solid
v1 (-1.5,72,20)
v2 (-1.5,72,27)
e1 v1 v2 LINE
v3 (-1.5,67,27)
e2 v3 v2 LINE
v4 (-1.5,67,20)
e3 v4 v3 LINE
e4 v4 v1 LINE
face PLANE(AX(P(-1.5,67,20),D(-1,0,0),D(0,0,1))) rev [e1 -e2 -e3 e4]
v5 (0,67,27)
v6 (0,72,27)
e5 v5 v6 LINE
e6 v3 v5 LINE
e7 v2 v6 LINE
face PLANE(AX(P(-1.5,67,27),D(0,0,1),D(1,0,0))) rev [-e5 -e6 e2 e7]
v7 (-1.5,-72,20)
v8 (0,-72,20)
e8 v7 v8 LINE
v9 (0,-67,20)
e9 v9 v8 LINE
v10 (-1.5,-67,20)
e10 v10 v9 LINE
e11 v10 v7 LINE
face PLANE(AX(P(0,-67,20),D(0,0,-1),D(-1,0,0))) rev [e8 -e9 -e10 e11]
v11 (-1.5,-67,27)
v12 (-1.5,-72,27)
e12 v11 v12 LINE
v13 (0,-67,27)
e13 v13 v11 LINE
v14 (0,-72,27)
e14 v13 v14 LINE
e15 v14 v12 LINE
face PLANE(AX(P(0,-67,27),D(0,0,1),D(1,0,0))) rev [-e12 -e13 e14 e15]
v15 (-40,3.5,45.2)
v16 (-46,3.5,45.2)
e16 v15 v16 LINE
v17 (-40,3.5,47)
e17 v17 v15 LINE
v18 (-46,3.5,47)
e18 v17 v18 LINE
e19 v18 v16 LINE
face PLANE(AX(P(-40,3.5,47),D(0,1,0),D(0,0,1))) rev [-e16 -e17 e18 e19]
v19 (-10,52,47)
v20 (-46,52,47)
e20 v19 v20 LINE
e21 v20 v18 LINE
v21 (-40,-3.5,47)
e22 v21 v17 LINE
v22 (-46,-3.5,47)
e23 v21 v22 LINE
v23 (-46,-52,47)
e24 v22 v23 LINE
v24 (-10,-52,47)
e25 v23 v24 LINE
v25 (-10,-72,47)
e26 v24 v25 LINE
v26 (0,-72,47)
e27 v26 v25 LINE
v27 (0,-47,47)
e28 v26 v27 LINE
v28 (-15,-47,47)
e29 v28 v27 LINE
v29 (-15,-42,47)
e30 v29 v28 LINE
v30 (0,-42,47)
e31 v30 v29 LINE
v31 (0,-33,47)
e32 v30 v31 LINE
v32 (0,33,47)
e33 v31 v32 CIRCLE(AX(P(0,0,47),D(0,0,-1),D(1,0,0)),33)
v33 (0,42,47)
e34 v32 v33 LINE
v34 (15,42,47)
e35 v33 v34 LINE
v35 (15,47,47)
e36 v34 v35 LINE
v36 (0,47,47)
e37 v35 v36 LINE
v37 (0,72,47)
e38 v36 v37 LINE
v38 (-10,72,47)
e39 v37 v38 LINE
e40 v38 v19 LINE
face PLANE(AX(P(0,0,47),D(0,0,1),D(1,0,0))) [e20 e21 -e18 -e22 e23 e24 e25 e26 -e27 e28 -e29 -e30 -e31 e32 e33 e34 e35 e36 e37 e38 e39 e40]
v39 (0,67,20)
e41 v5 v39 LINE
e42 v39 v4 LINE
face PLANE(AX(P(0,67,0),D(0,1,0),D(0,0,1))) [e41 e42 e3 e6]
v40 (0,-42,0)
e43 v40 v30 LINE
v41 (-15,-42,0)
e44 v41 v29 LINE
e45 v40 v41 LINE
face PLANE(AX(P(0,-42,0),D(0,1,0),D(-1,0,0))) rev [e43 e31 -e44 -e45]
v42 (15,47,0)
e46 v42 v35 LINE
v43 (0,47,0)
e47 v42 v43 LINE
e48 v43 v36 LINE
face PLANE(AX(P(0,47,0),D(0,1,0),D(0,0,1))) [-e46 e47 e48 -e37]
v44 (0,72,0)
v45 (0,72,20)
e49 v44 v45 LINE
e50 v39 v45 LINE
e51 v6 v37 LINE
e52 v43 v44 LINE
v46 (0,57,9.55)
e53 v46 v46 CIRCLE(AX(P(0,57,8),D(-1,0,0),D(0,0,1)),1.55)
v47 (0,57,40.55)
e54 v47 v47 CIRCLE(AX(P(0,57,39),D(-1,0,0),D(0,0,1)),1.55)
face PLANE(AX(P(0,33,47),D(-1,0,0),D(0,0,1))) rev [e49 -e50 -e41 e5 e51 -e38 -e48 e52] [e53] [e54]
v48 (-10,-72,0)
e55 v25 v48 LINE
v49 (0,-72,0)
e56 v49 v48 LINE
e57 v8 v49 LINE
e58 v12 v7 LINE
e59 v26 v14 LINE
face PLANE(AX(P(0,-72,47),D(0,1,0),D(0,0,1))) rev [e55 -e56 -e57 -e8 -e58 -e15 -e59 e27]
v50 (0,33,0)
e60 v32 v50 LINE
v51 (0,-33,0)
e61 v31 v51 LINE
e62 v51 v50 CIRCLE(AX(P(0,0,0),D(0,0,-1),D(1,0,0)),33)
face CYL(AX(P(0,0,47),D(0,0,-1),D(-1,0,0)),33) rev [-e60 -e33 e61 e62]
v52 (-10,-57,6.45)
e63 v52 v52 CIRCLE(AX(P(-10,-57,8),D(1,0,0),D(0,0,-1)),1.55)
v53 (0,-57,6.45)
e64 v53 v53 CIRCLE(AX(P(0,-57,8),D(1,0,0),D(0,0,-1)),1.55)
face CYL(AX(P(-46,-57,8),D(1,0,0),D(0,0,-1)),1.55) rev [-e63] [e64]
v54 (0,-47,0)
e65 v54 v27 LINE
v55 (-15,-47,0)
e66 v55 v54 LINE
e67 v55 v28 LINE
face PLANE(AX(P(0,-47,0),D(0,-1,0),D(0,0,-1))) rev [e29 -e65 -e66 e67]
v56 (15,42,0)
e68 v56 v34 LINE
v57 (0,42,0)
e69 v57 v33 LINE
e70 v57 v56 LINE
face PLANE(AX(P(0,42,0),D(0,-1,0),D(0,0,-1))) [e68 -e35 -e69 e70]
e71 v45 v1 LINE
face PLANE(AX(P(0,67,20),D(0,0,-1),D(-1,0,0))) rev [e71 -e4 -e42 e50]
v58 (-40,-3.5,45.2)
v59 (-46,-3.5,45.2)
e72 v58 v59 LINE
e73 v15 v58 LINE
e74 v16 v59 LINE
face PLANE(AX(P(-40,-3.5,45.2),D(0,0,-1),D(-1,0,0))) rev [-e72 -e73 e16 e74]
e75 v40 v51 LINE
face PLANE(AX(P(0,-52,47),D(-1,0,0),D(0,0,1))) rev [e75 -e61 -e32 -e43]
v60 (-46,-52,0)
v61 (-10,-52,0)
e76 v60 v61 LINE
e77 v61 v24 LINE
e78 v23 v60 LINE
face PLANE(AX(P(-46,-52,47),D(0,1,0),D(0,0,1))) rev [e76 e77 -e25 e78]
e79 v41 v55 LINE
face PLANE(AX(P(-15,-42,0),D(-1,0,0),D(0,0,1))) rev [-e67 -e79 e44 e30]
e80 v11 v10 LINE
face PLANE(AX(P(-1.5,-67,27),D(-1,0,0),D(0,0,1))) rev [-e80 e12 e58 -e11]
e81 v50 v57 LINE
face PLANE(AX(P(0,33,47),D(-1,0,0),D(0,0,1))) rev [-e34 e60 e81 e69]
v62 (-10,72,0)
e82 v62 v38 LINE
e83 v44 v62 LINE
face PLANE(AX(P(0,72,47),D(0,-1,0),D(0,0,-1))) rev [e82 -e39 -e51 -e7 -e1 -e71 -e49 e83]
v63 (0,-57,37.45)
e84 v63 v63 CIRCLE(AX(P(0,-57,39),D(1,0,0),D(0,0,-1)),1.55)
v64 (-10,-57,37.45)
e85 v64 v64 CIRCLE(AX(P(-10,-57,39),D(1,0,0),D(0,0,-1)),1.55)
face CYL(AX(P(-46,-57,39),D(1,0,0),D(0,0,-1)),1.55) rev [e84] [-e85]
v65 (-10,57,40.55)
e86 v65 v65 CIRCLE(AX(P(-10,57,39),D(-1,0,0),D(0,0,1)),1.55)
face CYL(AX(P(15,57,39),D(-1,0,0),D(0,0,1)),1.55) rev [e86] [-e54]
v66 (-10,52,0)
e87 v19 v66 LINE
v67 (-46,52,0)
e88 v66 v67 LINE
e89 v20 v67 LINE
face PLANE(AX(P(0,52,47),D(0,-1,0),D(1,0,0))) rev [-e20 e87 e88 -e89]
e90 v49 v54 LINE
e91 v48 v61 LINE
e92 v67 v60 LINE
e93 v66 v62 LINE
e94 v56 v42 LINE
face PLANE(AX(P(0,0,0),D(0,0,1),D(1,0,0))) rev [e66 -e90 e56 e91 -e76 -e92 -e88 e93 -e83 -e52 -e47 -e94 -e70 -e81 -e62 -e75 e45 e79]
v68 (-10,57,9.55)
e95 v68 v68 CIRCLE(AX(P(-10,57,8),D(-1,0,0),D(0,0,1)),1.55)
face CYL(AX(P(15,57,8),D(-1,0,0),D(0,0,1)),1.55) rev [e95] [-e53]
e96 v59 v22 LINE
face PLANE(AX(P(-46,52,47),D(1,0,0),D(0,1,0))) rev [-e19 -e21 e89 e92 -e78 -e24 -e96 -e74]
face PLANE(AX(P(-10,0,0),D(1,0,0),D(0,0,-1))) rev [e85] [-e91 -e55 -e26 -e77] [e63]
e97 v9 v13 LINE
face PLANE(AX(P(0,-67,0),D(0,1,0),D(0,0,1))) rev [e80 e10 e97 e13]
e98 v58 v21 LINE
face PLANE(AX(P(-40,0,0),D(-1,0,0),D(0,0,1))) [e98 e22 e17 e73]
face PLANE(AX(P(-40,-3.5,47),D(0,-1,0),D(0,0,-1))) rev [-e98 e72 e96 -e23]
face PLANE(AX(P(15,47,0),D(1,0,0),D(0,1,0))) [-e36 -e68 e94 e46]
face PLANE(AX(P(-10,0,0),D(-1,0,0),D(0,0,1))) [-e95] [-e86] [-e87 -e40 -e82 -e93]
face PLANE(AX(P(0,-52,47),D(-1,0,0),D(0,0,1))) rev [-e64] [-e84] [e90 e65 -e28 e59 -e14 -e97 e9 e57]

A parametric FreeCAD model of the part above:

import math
import FreeCAD as App
import Part
import Sketcher
from FreeCAD import Vector


def add_polygon(sketch, points):
    """Adds a closed chain of lines whose ends are joined by coincident constraints."""
    first, n = sketch.GeometryCount, len(points)
    for a, b in zip(points, points[1:] + points[:1]):
        sketch.addGeometry(Part.LineSegment(App.Vector(*a, 0), App.Vector(*b, 0)), False)
    for i in range(n):
        sketch.addConstraint(Sketcher.Constraint("Coincident", first + i, 2, first + (i + 1) % n, 1))

doc = App.newDocument("Part")
body = doc.addObject("PartDesign::Body", "Body")

# Sketch on XY plane
sketch1 = body.newObject("Sketcher::SketchObject", "Sketch")
sketch1.AttachmentSupport = (doc.getObject("XY_Plane"), [""])
sketch1.MapMode = "FlatFace"
sketch1.addGeometry(Part.LineSegment(Vector(0, 33, 0), Vector(0, 52, 0)), False)
sketch1.addGeometry(Part.LineSegment(Vector(0, 52, 0), Vector(-46, 52, 0)), False)
sketch1.addGeometry(Part.LineSegment(Vector(-46, 52, 0), Vector(-46, -52, 0)), False)
sketch1.addGeometry(Part.LineSegment(Vector(-46, -52, 0), Vector(0, -52, 0)), False)
sketch1.addGeometry(Part.LineSegment(Vector(0, -52, 0), Vector(0, -33, 0)), False)
sketch1.addGeometry(Part.ArcOfCircle(Part.Circle(Vector(0, 0, 0), Vector(0, 0, 1), 33), math.radians(90), math.radians(270)), False)
sketch1.addConstraint(Sketcher.Constraint("Coincident", 0, 2, 1, 1))
sketch1.addConstraint(Sketcher.Constraint("Coincident", 1, 2, 2, 1))
sketch1.addConstraint(Sketcher.Constraint("Coincident", 2, 2, 3, 1))
sketch1.addConstraint(Sketcher.Constraint("Coincident", 3, 2, 4, 1))
sketch1.addConstraint(Sketcher.Constraint("Coincident", 4, 2, 5, 2))
sketch1.addConstraint(Sketcher.Constraint("Coincident", 5, 1, 0, 1))
sketch1.addConstraint(Sketcher.Constraint("Vertical", 0))
sketch1.addConstraint(Sketcher.Constraint("Horizontal", 1))
sketch1.addConstraint(Sketcher.Constraint("Vertical", 2))
sketch1.addConstraint(Sketcher.Constraint("Horizontal", 3))
sketch1.addConstraint(Sketcher.Constraint("Vertical", 4))
sketch1.addConstraint(Sketcher.Constraint("Coincident", 5, 3, -1, 1))
sketch1.addConstraint(Sketcher.Constraint("Symmetric", 0, 2, 3, 2, -1, 1))
sketch1.addConstraint(Sketcher.Constraint("PointOnObject", 0, 2, -2))
sketch1.addConstraint(Sketcher.Constraint("Radius", 5, 33.0))
sketch1.addConstraint(Sketcher.Constraint("DistanceX", 1, 2, 1, 1, 46.0))
sketch1.addConstraint(Sketcher.Constraint("DistanceY", 0, 1, 0, 2, 19.0))
pad1 = body.newObject("PartDesign::Pad", "Pad")
pad1.Profile = sketch1
pad1.Length = 47

# Sketch on YZ plane
sketch2 = body.newObject("Sketcher::SketchObject", "Sketch001")
sketch2.AttachmentSupport = (doc.getObject("YZ_Plane"), [""])
sketch2.MapMode = "FlatFace"
sketch2.AttachmentOffset = App.Placement(Vector(0, 0, -10), App.Rotation())
add_polygon(sketch2, [(72, 47), (52, 47), (52, 0), (72, 0)])  # lines 0-3
sketch2.addConstraint(Sketcher.Constraint("Horizontal", 0))
sketch2.addConstraint(Sketcher.Constraint("Vertical", 1))
sketch2.addConstraint(Sketcher.Constraint("Horizontal", 2))
sketch2.addConstraint(Sketcher.Constraint("Vertical", 3))
sketch2.addConstraint(Sketcher.Constraint("PointOnObject", 1, 2, -1))
sketch2.addConstraint(Sketcher.Constraint("DistanceX", 0, 2, 0, 1, 20.0))
sketch2.addConstraint(Sketcher.Constraint("DistanceY", 1, 2, 1, 1, 47.0))
sketch2.addConstraint(Sketcher.Constraint("DistanceX", -1, 1, 0, 2, 52.0))
pad2 = body.newObject("PartDesign::Pad", "Pad001")
pad2.Profile = sketch2
pad2.Length = 10

# Sketch on YZ plane
sketch3 = body.newObject("Sketcher::SketchObject", "Sketch002")
sketch3.AttachmentSupport = (doc.getObject("YZ_Plane"), [""])
sketch3.MapMode = "FlatFace"
sketch3.AttachmentOffset = App.Placement(Vector(0, 0, -10), App.Rotation())
add_polygon(sketch3, [(-52, 47), (-72, 47), (-72, 0), (-52, 0)])  # lines 0-3
sketch3.addConstraint(Sketcher.Constraint("Horizontal", 0))
sketch3.addConstraint(Sketcher.Constraint("Vertical", 1))
sketch3.addConstraint(Sketcher.Constraint("Horizontal", 2))
sketch3.addConstraint(Sketcher.Constraint("Vertical", 3))
sketch3.addConstraint(Sketcher.Constraint("PointOnObject", 1, 2, -1))
sketch3.addConstraint(Sketcher.Constraint("DistanceX", 0, 2, 0, 1, 20.0))
sketch3.addConstraint(Sketcher.Constraint("DistanceY", 1, 2, 1, 1, 47.0))
sketch3.addConstraint(Sketcher.Constraint("DistanceX", 0, 2, -1, 1, 72.0))
pad3 = body.newObject("PartDesign::Pad", "Pad002")
pad3.Profile = sketch3
pad3.Length = 10

# Sketch on XY plane
sketch4 = body.newObject("Sketcher::SketchObject", "Sketch003")
sketch4.AttachmentSupport = (doc.getObject("XY_Plane"), [""])
sketch4.MapMode = "FlatFace"
sketch4.AttachmentOffset = App.Placement(Vector(0, 0, 47), App.Rotation())
add_polygon(sketch4, [(-15, -42), (-15, -47), (0, -47), (0, -42)])  # lines 0-3
sketch4.addConstraint(Sketcher.Constraint("Vertical", 0))
sketch4.addConstraint(Sketcher.Constraint("Horizontal", 1))
sketch4.addConstraint(Sketcher.Constraint("Vertical", 2))
sketch4.addConstraint(Sketcher.Constraint("Horizontal", 3))
sketch4.addConstraint(Sketcher.Constraint("PointOnObject", 1, 2, -2))
sketch4.addConstraint(Sketcher.Constraint("DistanceX", 1, 1, 1, 2, 15.0))
sketch4.addConstraint(Sketcher.Constraint("DistanceY", 0, 2, 0, 1, 5.0))
sketch4.addConstraint(Sketcher.Constraint("DistanceY", 0, 2, -1, 1, 47.0))
pocket1 = body.newObject("PartDesign::Pocket", "Pocket")
pocket1.Profile = sketch4
pocket1.Type = "ThroughAll"

# Sketch on XY plane
sketch5 = body.newObject("Sketcher::SketchObject", "Sketch004")
sketch5.AttachmentSupport = (doc.getObject("XY_Plane"), [""])
sketch5.MapMode = "FlatFace"
sketch5.AttachmentOffset = App.Placement(Vector(0, 0, 47), App.Rotation())
add_polygon(sketch5, [(0, 47), (0, 42), (15, 42), (15, 47)])  # lines 0-3
sketch5.addConstraint(Sketcher.Constraint("Vertical", 0))
sketch5.addConstraint(Sketcher.Constraint("Horizontal", 1))
sketch5.addConstraint(Sketcher.Constraint("Vertical", 2))
sketch5.addConstraint(Sketcher.Constraint("Horizontal", 3))
sketch5.addConstraint(Sketcher.Constraint("PointOnObject", 0, 2, -2))
sketch5.addConstraint(Sketcher.Constraint("DistanceX", 1, 1, 1, 2, 15.0))
sketch5.addConstraint(Sketcher.Constraint("DistanceY", 0, 2, 0, 1, 5.0))
sketch5.addConstraint(Sketcher.Constraint("DistanceY", -1, 1, 0, 2, 42.0))
pad4 = body.newObject("PartDesign::Pad", "Pad003")
pad4.Profile = sketch5
pad4.Length = 47
pad4.Reversed = True

# Sketch on XZ plane
sketch6 = body.newObject("Sketcher::SketchObject", "Sketch005")
sketch6.AttachmentSupport = (doc.getObject("XZ_Plane"), [""])
sketch6.MapMode = "FlatFace"
sketch6.AttachmentOffset = App.Placement(Vector(0, 0, 72), App.Rotation())
add_polygon(sketch6, [(-1.5, 27), (-1.5, 20), (0, 20), (0, 27)])  # lines 0-3
sketch6.addConstraint(Sketcher.Constraint("Vertical", 0))
sketch6.addConstraint(Sketcher.Constraint("Horizontal", 1))
sketch6.addConstraint(Sketcher.Constraint("Vertical", 2))
sketch6.addConstraint(Sketcher.Constraint("Horizontal", 3))
sketch6.addConstraint(Sketcher.Constraint("PointOnObject", 1, 2, -2))
sketch6.addConstraint(Sketcher.Constraint("DistanceY", 0, 2, 0, 1, 7.0))
sketch6.addConstraint(Sketcher.Constraint("DistanceX", 1, 1, 1, 2, 1.5))
sketch6.addConstraint(Sketcher.Constraint("DistanceY", -1, 1, 0, 2, 20.0))
pocket2 = body.newObject("PartDesign::Pocket", "Pocket001")
pocket2.Profile = sketch6
pocket2.Length = 5

# Sketch on YZ plane
sketch7 = body.newObject("Sketcher::SketchObject", "Sketch006")
sketch7.AttachmentSupport = (doc.getObject("YZ_Plane"), [""])
sketch7.MapMode = "FlatFace"
sketch7.addGeometry(Part.Circle(Vector(-57, 39, 0), Vector(0, 0, 1), 1.55), False)
sketch7.addGeometry(Part.Circle(Vector(-57, 8, 0), Vector(0, 0, 1), 1.55), False)
sketch7.addConstraint(Sketcher.Constraint("Equal", 0, 1))
sketch7.addConstraint(Sketcher.Constraint("Vertical", 0, 3, 1, 3))
sketch7.addConstraint(Sketcher.Constraint("Diameter", 0, 3.1))
sketch7.addConstraint(Sketcher.Constraint("DistanceX", 0, 3, -1, 1, 57.0))
sketch7.addConstraint(Sketcher.Constraint("DistanceY", -1, 1, 0, 3, 39.0))
sketch7.addConstraint(Sketcher.Constraint("DistanceY", -1, 1, 1, 3, 8.0))
pocket3 = body.newObject("PartDesign::Pocket", "Pocket002")
pocket3.Profile = sketch7
pocket3.Type = "ThroughAll"

# Sketch on YZ plane
sketch8 = body.newObject("Sketcher::SketchObject", "Sketch007")
sketch8.AttachmentSupport = (doc.getObject("YZ_Plane"), [""])
sketch8.MapMode = "FlatFace"
sketch8.AttachmentOffset = App.Placement(Vector(0, 0, -10), App.Rotation())
sketch8.addGeometry(Part.Circle(Vector(57, 8, 0), Vector(0, 0, 1), 1.55), False)
sketch8.addGeometry(Part.Circle(Vector(57, 39, 0), Vector(0, 0, 1), 1.55), False)
sketch8.addConstraint(Sketcher.Constraint("Equal", 0, 1))
sketch8.addConstraint(Sketcher.Constraint("Vertical", 0, 3, 1, 3))
sketch8.addConstraint(Sketcher.Constraint("Diameter", 0, 3.1))
sketch8.addConstraint(Sketcher.Constraint("DistanceX", -1, 1, 0, 3, 57.0))
sketch8.addConstraint(Sketcher.Constraint("DistanceY", -1, 1, 0, 3, 8.0))
sketch8.addConstraint(Sketcher.Constraint("DistanceY", -1, 1, 1, 3, 39.0))
pocket4 = body.newObject("PartDesign::Pocket", "Pocket003")
pocket4.Profile = sketch8
pocket4.Type = "ThroughAll"
pocket4.Reversed = True

# Sketch on XZ plane
sketch9 = body.newObject("Sketcher::SketchObject", "Sketch008")
sketch9.AttachmentSupport = (doc.getObject("XZ_Plane"), [""])
sketch9.MapMode = "FlatFace"
sketch9.AttachmentOffset = App.Placement(Vector(0, 0, -72), App.Rotation())
add_polygon(sketch9, [(-1.5, 20), (-1.5, 27), (0, 27), (0, 20)])  # lines 0-3
sketch9.addConstraint(Sketcher.Constraint("Vertical", 0))
sketch9.addConstraint(Sketcher.Constraint("Horizontal", 1))
sketch9.addConstraint(Sketcher.Constraint("Vertical", 2))
sketch9.addConstraint(Sketcher.Constraint("Horizontal", 3))
sketch9.addConstraint(Sketcher.Constraint("PointOnObject", 1, 2, -2))
sketch9.addConstraint(Sketcher.Constraint("DistanceY", 0, 1, 0, 2, 7.0))
sketch9.addConstraint(Sketcher.Constraint("DistanceX", 1, 1, 1, 2, 1.5))
sketch9.addConstraint(Sketcher.Constraint("DistanceY", -1, 1, 0, 2, 27.0))
pocket5 = body.newObject("PartDesign::Pocket", "Pocket004")
pocket5.Profile = sketch9
pocket5.Length = 5
pocket5.Reversed = True

# Sketch on YZ plane
sketch10 = body.newObject("Sketcher::SketchObject", "Sketch009")
sketch10.AttachmentSupport = (doc.getObject("YZ_Plane"), [""])
sketch10.MapMode = "FlatFace"
sketch10.AttachmentOffset = App.Placement(Vector(0, 0, -46), App.Rotation())
add_polygon(sketch10, [(3.5, 45.2), (-3.5, 45.2), (-3.5, 47), (3.5, 47)])  # lines 0-3
sketch10.addConstraint(Sketcher.Constraint("Horizontal", 0))
sketch10.addConstraint(Sketcher.Constraint("Vertical", 1))
sketch10.addConstraint(Sketcher.Constraint("Horizontal", 2))
sketch10.addConstraint(Sketcher.Constraint("Vertical", 3))
sketch10.addConstraint(Sketcher.Constraint("DistanceX", 0, 2, 0, 1, 7.0))
sketch10.addConstraint(Sketcher.Constraint("DistanceY", 1, 1, 1, 2, 1.8))
sketch10.addConstraint(Sketcher.Constraint("DistanceY", -1, 1, 1, 2, 47.0))
sketch10.addConstraint(Sketcher.Constraint("DistanceX", 0, 2, -1, 1, 3.5))
pocket6 = body.newObject("PartDesign::Pocket", "Pocket005")
pocket6.Profile = sketch10
pocket6.Length = 6
pocket6.Reversed = True

doc.recompute()
